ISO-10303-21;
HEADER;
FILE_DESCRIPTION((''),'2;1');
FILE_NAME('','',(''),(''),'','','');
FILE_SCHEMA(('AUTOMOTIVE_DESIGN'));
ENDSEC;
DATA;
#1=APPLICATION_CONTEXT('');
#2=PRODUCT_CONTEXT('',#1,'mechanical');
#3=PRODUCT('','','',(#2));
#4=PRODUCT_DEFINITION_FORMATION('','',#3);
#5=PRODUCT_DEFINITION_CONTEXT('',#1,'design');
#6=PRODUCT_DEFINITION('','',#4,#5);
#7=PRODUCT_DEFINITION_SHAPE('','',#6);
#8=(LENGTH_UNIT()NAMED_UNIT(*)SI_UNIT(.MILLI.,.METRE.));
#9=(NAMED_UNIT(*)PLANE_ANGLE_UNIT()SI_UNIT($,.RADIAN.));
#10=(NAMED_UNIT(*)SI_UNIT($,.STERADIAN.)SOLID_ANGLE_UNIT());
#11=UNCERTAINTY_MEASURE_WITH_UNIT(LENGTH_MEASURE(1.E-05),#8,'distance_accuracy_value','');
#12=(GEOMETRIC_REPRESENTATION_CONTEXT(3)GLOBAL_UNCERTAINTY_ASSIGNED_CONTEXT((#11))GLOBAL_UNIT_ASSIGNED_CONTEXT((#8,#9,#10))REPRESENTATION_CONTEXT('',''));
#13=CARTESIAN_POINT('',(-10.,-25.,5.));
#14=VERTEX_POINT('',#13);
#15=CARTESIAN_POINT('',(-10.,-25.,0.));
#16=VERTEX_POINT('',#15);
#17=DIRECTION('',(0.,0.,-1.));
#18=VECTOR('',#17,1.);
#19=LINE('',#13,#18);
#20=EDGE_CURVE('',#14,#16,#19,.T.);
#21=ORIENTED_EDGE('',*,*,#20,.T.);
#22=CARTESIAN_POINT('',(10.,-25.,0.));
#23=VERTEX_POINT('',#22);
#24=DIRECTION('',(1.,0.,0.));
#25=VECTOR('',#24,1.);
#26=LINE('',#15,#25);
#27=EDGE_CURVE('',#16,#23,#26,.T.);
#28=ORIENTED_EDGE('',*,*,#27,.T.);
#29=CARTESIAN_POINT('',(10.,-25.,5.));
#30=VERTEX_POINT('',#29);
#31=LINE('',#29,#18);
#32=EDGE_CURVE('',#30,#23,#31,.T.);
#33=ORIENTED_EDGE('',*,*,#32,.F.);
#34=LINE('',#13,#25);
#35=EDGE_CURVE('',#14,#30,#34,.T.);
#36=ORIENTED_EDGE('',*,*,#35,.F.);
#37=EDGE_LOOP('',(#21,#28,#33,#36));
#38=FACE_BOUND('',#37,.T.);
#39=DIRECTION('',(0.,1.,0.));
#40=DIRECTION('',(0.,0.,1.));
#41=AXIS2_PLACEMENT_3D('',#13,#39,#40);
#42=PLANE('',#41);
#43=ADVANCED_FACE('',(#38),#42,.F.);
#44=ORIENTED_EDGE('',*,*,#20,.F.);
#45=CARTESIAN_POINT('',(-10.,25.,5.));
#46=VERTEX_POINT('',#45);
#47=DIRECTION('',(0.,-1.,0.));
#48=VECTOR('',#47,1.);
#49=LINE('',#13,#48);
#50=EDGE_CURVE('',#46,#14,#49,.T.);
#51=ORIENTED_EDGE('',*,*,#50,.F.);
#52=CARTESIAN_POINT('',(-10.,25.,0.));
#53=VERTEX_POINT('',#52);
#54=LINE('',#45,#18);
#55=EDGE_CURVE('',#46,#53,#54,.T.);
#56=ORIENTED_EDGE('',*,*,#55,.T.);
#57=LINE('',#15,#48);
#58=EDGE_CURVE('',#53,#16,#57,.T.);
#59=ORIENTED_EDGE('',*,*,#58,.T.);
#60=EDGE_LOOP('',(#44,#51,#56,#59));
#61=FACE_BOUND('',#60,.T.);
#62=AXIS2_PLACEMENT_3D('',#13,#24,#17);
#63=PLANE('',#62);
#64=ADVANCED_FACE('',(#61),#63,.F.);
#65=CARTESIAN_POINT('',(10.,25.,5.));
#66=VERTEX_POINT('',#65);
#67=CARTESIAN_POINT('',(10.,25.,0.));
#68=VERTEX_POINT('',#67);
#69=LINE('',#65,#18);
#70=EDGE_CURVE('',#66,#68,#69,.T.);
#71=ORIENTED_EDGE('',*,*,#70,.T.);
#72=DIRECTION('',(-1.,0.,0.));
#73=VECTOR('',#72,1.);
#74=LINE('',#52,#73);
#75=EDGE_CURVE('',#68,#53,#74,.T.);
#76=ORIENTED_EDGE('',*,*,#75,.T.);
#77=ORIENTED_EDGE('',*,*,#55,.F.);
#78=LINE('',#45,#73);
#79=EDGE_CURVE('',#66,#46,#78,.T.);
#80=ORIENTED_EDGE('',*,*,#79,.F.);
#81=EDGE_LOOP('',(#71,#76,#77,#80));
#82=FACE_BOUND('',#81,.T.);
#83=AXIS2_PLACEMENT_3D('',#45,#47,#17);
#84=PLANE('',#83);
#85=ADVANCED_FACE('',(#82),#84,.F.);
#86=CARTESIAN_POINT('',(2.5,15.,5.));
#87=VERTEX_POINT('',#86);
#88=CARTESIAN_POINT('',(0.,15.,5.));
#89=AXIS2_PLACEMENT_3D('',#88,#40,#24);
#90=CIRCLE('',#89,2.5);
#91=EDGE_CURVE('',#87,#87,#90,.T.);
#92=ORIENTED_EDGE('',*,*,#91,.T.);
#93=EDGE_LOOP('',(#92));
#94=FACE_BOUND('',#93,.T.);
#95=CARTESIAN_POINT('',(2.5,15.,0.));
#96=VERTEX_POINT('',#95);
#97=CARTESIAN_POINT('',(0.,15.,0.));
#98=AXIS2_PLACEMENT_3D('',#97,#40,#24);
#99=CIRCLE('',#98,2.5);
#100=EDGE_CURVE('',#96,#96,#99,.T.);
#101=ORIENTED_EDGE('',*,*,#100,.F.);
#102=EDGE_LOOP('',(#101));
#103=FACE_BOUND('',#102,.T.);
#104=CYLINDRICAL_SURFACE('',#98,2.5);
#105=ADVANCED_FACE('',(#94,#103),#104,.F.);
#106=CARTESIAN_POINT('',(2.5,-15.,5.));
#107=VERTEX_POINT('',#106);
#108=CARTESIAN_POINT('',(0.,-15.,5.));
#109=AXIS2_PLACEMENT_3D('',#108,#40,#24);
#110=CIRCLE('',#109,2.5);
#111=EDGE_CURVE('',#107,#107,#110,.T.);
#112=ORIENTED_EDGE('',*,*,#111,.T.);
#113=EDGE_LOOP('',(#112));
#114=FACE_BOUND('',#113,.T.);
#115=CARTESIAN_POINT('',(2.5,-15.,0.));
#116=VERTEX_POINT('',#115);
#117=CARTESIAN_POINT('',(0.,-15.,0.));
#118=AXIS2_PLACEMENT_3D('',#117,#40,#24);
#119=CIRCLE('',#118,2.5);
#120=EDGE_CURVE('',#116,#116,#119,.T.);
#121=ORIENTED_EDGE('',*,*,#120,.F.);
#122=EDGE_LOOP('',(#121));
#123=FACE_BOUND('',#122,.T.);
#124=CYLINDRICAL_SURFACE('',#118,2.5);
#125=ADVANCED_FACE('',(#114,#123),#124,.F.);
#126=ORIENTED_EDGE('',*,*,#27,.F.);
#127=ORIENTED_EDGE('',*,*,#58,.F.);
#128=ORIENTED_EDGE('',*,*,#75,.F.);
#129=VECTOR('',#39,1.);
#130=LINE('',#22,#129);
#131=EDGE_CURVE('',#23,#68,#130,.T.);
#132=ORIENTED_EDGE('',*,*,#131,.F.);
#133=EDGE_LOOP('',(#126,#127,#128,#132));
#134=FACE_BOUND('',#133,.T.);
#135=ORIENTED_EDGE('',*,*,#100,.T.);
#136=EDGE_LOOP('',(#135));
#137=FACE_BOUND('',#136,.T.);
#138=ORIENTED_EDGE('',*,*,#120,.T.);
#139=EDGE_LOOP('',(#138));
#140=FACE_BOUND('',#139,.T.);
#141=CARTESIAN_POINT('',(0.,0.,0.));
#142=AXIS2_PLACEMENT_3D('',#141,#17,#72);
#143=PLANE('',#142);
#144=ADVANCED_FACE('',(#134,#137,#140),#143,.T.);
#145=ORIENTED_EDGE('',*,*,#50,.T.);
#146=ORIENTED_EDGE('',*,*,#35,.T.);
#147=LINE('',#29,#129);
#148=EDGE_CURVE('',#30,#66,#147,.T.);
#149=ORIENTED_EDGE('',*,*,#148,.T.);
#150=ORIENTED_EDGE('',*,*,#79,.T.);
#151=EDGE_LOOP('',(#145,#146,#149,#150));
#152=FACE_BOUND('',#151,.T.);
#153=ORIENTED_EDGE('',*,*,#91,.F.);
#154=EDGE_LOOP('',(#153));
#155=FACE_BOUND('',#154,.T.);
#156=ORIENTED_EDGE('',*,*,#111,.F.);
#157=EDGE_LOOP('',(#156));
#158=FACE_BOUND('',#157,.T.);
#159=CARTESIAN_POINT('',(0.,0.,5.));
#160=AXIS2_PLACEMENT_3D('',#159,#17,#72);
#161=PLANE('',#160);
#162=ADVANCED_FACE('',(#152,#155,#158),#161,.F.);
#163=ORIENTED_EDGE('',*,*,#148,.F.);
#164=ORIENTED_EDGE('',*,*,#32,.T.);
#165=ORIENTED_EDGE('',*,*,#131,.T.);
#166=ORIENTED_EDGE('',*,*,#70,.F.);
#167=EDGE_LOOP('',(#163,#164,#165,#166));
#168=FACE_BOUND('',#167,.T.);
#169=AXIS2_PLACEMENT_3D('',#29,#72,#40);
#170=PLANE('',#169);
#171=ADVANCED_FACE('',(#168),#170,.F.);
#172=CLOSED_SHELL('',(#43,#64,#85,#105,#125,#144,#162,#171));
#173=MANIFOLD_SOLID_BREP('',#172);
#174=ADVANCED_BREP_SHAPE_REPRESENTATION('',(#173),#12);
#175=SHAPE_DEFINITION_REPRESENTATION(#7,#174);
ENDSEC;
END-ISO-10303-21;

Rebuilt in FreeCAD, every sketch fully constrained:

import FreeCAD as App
import Part
import Sketcher
from FreeCAD import Vector
Q = App.Units.Quantity


def add_polygon(sketch, points):
    """Adds a closed chain of lines whose ends are joined by coincident constraints."""
    first, n = sketch.GeometryCount, len(points)
    for a, b in zip(points, points[1:] + points[:1]):
        sketch.addGeometry(Part.LineSegment(App.Vector(*a, 0), App.Vector(*b, 0)), False)
    for i in range(n):
        sketch.addConstraint(Sketcher.Constraint("Coincident", first + i, 2, first + (i + 1) % n, 1))

doc = App.newDocument("Part")
params = doc.addObject("Spreadsheet::Sheet", "Params")
for row, (alias, value) in enumerate([
    ("sketch1_width", "20 mm"),
    ("sketch1_height", "50 mm"),
    ("pad1_length", "5 mm"),
    ("sketch2_diameter", "5 mm"),
], start=1):
    params.set(f"A{row}", alias)
    params.set(f"B{row}", "=" + value)
    params.setAlias(f"B{row}", alias)

body = doc.addObject("PartDesign::Body", "Body")

# Sketch on XY plane
sketch1 = body.newObject("Sketcher::SketchObject", "Sketch")
sketch1.AttachmentSupport = (doc.getObject("XY_Plane"), [""])
sketch1.MapMode = "FlatFace"
add_polygon(sketch1, [(-10, 25), (-10, -25), (10, -25), (10, 25)])  # lines 0-3
sketch1.addConstraint(Sketcher.Constraint("Vertical", 0))
sketch1.addConstraint(Sketcher.Constraint("Horizontal", 1))
sketch1.addConstraint(Sketcher.Constraint("Vertical", 2))
sketch1.addConstraint(Sketcher.Constraint("Horizontal", 3))
sketch1.addConstraint(Sketcher.Constraint("Symmetric", 0, 2, 2, 2, -1, 1))
sketch1.addConstraint(Sketcher.Constraint("DistanceX", 1, 1, 1, 2, Q("20 mm")))
sketch1.addConstraint(Sketcher.Constraint("DistanceY", 0, 2, 0, 1, Q("50 mm")))
sketch1.setExpression("Constraints[9]", "Params.sketch1_width")
sketch1.setExpression("Constraints[10]", "Params.sketch1_height")
pad1 = body.newObject("PartDesign::Pad", "Pad")
pad1.Profile = sketch1
pad1.setExpression("Length", "Params.pad1_length")

# Sketch on XY plane
sketch2 = body.newObject("Sketcher::SketchObject", "Sketch001")
sketch2.AttachmentSupport = (doc.getObject("XY_Plane"), [""])
sketch2.MapMode = "FlatFace"
sketch2.AttachmentOffset = App.Placement(Vector(0, 0, 5), App.Rotation())
sketch2.addGeometry(Part.Circle(Vector(0, 15, 0), Vector(0, 0, 1), 2.5), False)
sketch2.addGeometry(Part.Circle(Vector(0, -15, 0), Vector(0, 0, 1), 2.5), False)
sketch2.addConstraint(Sketcher.Constraint("Equal", 0, 1))
sketch2.addConstraint(Sketcher.Constraint("Symmetric", 0, 3, 1, 3, -1, 1))
sketch2.addConstraint(Sketcher.Constraint("PointOnObject", 0, 3, -2))
sketch2.addConstraint(Sketcher.Constraint("Diameter", 0, Q("5 mm")))
sketch2.addConstraint(Sketcher.Constraint("DistanceY", -1, 1, 0, 3, Q("15 mm")))
sketch2.setExpression("Constraints[3]", "Params.sketch2_diameter")
pocket1 = body.newObject("PartDesign::Pocket", "Pocket")
pocket1.Profile = sketch2
pocket1.Type = "ThroughAll"

doc.recompute()
